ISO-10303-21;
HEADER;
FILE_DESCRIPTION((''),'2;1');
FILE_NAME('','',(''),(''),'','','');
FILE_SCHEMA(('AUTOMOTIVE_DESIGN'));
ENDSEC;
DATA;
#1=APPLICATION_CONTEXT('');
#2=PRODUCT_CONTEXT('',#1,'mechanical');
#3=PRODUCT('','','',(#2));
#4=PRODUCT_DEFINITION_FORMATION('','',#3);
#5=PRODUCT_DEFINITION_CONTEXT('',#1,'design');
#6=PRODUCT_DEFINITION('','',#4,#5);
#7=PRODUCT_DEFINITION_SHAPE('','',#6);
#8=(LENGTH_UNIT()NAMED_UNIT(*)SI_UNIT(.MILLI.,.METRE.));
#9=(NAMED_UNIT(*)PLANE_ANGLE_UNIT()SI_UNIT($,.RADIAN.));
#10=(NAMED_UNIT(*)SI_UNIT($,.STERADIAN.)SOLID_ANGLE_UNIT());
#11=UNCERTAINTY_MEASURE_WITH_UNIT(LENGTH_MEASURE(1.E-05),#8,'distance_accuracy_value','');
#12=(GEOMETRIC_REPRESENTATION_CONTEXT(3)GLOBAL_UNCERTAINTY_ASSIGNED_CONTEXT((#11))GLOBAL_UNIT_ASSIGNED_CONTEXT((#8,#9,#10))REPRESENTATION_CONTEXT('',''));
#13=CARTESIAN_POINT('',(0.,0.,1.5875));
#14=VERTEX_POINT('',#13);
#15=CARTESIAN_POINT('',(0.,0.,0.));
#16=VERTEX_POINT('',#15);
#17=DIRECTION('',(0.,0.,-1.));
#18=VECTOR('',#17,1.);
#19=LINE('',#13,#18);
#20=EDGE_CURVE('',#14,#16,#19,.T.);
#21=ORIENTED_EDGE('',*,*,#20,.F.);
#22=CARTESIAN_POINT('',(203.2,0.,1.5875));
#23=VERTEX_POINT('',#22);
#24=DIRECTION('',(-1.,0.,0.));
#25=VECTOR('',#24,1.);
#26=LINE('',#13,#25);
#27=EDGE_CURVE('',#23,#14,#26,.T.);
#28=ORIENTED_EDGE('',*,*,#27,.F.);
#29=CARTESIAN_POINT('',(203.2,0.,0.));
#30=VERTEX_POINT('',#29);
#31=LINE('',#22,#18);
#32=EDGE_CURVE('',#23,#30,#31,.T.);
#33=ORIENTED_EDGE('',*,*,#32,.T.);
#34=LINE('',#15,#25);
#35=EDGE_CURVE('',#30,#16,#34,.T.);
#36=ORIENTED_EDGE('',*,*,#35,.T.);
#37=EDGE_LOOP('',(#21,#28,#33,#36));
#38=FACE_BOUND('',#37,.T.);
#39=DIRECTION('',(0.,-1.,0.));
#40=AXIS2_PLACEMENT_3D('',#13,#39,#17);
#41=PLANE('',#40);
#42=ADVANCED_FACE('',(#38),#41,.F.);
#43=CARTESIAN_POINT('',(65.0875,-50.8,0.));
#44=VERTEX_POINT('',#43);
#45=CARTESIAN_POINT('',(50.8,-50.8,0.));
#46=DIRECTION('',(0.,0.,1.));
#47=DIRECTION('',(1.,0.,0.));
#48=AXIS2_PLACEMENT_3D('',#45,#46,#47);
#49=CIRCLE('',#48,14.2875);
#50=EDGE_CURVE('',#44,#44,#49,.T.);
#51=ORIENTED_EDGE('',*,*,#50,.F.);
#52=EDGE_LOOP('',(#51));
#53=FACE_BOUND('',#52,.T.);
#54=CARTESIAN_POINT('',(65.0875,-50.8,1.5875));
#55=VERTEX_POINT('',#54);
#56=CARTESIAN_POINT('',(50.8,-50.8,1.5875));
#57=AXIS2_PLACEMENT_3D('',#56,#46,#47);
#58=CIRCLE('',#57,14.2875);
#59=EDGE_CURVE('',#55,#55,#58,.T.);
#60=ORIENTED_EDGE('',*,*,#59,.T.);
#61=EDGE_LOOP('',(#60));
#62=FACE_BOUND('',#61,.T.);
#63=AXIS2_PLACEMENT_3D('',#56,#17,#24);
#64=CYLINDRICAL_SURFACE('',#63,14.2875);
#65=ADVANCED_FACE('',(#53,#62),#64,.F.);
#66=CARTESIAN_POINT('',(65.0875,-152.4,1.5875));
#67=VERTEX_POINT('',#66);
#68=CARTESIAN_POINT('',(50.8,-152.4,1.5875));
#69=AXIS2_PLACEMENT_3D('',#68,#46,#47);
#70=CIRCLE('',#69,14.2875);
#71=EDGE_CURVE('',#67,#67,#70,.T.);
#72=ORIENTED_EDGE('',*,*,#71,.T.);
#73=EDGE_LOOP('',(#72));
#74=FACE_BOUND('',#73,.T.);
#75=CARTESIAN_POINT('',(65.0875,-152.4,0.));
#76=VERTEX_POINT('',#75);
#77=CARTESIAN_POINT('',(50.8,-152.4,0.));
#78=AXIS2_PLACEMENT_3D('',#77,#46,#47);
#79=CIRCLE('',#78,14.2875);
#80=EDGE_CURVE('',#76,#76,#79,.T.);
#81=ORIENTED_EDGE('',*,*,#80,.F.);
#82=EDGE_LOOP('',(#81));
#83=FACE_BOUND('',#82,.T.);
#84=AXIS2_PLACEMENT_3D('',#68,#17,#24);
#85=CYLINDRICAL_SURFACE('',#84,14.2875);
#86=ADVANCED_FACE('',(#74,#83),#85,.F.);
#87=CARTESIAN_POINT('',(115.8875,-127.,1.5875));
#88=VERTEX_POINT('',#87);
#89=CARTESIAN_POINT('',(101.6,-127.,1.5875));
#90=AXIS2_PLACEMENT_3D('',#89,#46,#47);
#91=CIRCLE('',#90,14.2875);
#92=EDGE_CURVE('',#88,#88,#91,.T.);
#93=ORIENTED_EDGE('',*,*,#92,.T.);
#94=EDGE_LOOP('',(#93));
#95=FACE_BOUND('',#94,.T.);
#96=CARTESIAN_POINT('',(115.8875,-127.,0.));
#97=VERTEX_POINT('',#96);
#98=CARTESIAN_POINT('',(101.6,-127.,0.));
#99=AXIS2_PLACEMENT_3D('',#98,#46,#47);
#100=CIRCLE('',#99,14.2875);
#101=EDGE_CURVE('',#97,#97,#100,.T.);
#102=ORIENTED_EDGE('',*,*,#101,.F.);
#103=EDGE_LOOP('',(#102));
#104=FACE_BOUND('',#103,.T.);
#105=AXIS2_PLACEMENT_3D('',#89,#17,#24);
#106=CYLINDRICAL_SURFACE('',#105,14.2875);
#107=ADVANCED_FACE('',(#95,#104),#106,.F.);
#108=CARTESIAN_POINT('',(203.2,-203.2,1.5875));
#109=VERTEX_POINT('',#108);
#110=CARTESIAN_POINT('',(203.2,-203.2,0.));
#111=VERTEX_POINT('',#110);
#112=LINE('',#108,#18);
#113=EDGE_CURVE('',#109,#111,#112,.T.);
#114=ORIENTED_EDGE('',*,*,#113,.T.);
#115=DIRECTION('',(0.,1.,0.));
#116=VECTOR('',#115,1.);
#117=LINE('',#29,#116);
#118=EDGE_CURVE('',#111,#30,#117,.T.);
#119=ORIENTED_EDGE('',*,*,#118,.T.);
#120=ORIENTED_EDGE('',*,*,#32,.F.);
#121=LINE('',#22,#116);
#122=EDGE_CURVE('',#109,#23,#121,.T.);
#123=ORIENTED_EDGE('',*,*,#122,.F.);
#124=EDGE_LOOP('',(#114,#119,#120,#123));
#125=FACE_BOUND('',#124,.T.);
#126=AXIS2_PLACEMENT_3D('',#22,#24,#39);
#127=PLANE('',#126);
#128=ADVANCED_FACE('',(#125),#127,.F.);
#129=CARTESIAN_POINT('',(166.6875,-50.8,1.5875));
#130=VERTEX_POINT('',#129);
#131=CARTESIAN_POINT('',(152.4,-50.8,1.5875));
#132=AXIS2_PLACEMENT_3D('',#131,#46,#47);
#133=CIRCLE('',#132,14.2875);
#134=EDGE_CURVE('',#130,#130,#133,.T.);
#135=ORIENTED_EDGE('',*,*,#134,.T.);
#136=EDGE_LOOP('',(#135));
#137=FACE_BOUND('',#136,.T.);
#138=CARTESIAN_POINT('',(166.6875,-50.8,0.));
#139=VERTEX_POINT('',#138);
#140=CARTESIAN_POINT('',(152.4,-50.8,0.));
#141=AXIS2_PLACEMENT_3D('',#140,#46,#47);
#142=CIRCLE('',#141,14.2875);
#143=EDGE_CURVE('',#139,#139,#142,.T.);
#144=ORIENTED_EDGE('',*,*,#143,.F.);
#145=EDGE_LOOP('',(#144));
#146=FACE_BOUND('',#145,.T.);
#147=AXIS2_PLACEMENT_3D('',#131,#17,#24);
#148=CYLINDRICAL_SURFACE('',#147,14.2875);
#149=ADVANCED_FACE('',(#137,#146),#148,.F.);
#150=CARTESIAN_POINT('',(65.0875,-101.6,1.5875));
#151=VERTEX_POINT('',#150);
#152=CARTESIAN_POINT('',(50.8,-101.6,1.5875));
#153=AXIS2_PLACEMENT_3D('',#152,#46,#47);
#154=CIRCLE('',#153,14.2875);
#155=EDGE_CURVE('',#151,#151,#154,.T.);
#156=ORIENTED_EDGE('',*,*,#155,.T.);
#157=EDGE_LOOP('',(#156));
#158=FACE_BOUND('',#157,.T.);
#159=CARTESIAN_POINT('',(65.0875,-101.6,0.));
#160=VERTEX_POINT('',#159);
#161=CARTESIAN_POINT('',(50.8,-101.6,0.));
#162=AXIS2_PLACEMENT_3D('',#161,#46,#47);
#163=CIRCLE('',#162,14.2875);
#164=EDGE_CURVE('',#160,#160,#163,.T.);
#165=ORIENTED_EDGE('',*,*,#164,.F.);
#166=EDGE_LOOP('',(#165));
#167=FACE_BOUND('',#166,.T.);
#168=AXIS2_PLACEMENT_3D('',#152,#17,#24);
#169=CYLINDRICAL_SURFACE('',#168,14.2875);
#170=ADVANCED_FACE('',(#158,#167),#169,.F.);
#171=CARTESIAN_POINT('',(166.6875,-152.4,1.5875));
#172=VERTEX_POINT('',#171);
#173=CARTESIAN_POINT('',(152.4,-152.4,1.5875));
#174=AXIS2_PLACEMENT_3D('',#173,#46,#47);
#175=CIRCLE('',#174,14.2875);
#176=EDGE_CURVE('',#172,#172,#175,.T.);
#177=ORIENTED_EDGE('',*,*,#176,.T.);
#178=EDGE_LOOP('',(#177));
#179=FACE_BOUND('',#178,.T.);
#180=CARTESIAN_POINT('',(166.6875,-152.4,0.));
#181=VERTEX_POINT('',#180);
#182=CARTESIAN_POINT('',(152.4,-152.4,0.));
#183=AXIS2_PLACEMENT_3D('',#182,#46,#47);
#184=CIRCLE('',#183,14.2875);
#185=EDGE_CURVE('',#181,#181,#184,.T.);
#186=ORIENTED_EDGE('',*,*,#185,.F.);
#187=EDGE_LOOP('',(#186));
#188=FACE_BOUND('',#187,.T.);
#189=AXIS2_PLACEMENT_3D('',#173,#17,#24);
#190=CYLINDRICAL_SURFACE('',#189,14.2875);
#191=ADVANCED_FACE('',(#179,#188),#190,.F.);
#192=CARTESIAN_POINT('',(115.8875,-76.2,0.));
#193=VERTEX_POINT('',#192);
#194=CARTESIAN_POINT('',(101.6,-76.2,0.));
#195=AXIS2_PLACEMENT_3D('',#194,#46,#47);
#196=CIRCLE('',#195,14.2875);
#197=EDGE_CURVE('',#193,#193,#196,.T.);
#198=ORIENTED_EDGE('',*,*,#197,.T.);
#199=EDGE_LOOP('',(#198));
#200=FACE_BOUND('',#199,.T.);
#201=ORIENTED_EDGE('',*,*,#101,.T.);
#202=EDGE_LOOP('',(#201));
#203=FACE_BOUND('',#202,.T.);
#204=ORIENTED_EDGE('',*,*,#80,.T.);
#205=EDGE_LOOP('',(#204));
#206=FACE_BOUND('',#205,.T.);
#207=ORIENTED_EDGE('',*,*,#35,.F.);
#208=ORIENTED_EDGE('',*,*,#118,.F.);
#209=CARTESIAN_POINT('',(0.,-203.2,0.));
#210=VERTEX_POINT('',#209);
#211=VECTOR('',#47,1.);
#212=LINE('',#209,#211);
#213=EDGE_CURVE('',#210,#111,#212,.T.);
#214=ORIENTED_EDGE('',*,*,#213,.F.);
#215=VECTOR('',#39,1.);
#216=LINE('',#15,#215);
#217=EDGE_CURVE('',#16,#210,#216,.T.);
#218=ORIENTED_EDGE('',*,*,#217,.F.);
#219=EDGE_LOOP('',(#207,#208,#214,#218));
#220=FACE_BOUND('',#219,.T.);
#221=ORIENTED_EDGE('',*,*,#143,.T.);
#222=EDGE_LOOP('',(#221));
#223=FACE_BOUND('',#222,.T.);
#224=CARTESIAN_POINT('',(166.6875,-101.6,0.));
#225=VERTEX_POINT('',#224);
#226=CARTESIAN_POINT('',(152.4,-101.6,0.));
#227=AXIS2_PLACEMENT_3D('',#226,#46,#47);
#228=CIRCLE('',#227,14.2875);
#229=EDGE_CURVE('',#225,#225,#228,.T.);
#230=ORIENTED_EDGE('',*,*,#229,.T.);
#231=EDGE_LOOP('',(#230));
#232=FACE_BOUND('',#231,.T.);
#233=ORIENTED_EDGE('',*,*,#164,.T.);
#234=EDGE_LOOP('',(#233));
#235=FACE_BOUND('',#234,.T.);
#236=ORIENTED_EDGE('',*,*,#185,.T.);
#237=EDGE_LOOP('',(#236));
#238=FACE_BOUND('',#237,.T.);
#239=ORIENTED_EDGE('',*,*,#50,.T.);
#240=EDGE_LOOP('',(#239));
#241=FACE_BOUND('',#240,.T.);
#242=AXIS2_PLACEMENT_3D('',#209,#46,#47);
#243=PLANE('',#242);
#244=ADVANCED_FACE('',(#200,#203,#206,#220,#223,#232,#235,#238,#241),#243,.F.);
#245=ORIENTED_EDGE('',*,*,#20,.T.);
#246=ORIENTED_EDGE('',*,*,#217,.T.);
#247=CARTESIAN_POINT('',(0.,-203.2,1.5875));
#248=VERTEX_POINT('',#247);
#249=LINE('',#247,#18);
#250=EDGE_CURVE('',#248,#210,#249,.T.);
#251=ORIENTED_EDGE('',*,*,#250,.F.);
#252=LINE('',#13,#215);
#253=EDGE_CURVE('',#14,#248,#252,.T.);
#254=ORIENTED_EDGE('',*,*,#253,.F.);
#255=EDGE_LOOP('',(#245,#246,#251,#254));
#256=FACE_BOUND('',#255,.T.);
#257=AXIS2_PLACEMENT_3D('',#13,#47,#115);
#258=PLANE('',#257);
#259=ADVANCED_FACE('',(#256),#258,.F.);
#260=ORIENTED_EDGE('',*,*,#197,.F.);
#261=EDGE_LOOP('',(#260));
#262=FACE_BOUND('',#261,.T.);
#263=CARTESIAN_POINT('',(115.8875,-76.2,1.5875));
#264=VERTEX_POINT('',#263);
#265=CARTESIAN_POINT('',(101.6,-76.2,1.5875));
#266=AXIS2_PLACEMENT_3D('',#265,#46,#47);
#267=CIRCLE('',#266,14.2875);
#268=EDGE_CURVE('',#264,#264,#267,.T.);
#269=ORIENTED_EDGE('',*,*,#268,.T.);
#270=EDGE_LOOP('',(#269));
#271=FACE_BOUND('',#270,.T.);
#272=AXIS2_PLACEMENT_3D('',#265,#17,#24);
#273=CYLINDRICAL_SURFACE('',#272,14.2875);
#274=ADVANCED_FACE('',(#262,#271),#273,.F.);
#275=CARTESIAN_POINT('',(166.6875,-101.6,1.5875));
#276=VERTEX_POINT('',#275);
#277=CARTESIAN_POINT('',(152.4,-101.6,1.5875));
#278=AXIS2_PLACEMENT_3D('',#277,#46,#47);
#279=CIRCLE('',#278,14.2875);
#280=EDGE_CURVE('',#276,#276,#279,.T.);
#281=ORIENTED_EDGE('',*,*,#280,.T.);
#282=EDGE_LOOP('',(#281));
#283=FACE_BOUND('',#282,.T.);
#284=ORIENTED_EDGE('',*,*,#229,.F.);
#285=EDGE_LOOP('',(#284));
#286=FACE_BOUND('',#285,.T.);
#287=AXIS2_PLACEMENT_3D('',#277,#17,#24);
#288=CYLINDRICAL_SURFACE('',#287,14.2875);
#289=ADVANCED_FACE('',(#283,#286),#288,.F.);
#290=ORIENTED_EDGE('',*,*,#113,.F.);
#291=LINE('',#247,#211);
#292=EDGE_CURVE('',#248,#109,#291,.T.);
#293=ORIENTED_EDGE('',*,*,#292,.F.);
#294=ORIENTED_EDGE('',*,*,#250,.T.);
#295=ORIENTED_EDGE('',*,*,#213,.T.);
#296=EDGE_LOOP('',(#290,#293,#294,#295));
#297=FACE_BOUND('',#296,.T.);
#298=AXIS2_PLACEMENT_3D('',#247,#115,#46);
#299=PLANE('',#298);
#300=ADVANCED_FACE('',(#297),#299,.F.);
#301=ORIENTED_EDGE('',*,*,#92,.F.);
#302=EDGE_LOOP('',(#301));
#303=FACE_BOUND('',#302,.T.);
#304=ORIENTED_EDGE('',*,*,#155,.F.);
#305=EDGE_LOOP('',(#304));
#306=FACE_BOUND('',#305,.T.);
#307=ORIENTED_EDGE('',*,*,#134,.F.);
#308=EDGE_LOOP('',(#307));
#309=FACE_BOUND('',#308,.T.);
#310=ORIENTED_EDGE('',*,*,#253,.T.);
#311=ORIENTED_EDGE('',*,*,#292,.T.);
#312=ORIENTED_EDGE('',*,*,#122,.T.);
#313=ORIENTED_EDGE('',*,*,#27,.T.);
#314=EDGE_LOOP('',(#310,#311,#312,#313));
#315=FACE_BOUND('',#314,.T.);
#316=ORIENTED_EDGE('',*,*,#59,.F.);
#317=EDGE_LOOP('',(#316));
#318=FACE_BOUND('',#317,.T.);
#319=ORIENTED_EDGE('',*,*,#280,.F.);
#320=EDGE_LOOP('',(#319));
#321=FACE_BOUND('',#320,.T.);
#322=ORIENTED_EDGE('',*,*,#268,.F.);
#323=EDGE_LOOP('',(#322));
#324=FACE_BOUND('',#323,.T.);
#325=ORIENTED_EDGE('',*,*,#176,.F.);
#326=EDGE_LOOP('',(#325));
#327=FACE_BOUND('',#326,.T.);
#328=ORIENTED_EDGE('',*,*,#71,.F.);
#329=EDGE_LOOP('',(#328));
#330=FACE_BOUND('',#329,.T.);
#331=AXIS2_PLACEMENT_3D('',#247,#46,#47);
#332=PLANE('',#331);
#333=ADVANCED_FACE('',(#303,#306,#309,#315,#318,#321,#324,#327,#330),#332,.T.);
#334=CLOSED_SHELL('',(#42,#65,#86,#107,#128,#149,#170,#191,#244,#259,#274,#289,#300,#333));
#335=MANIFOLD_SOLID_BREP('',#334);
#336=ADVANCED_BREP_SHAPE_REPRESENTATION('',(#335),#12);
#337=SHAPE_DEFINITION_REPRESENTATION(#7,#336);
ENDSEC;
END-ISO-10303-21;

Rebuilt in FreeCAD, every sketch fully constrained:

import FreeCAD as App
import Part
import Sketcher
from FreeCAD import Vector
Q = App.Units.Quantity

doc = App.newDocument("Part")
body = doc.addObject("PartDesign::Body", "Body")

sketch1 = doc.addObject("Sketcher::SketchObject", "Sketch")
body.addObject(sketch1)
sketch1.AttachmentSupport = (doc.XY_Plane, [""])
sketch1.MapMode = "FlatFace"
sketch1.addGeometry(Part.LineSegment(Vector(0, 0, 0), Vector(0, -203, 0)), False)
sketch1.addGeometry(Part.LineSegment(Vector(0, -203, 0), Vector(203, -203, 0)), False)
sketch1.addGeometry(Part.LineSegment(Vector(203, -203, 0), Vector(203, 0, 0)), False)
sketch1.addGeometry(Part.LineSegment(Vector(203, 0, 0), Vector(0, 0, 0)), False)
sketch1.addGeometry(Part.Circle(Vector(51, -152, 0), Vector(0, 0, 1), 14), False)
sketch1.addGeometry(Part.Circle(Vector(152, -152, 0), Vector(0, 0, 1), 14), False)
sketch1.addGeometry(Part.Circle(Vector(102, -127, 0), Vector(0, 0, 1), 14), False)
sketch1.addGeometry(Part.Circle(Vector(51, -102, 0), Vector(0, 0, 1), 14), False)
sketch1.addGeometry(Part.Circle(Vector(51, -51, 0), Vector(0, 0, 1), 14), False)
sketch1.addGeometry(Part.Circle(Vector(102, -76, 0), Vector(0, 0, 1), 14), False)
sketch1.addGeometry(Part.Circle(Vector(152, -102, 0), Vector(0, 0, 1), 14), False)
sketch1.addGeometry(Part.Circle(Vector(152, -51, 0), Vector(0, 0, 1), 14), False)
sketch1.addConstraint(Sketcher.Constraint("Coincident", 0, 2, 1, 1))
sketch1.addConstraint(Sketcher.Constraint("Coincident", 1, 2, 2, 1))
sketch1.addConstraint(Sketcher.Constraint("Coincident", 2, 2, 3, 1))
sketch1.addConstraint(Sketcher.Constraint("Coincident", 3, 2, 0, 1))
sketch1.addConstraint(Sketcher.Constraint("Vertical", 0))
sketch1.addConstraint(Sketcher.Constraint("Horizontal", 1))
sketch1.addConstraint(Sketcher.Constraint("Vertical", 2))
sketch1.addConstraint(Sketcher.Constraint("Horizontal", 3))
sketch1.addConstraint(Sketcher.Constraint("Coincident", 3, 2, -1, 1))
sketch1.addConstraint(Sketcher.Constraint("Equal", 4, 5))
sketch1.addConstraint(Sketcher.Constraint("Equal", 5, 6))
sketch1.addConstraint(Sketcher.Constraint("Equal", 6, 7))
sketch1.addConstraint(Sketcher.Constraint("Equal", 7, 8))
sketch1.addConstraint(Sketcher.Constraint("Equal", 8, 9))
sketch1.addConstraint(Sketcher.Constraint("Equal", 9, 10))
sketch1.addConstraint(Sketcher.Constraint("Equal", 10, 11))
sketch1.addConstraint(Sketcher.Constraint("Horizontal", 4, 3, 5, 3))
sketch1.addConstraint(Sketcher.Constraint("Horizontal", 7, 3, 10, 3))
sketch1.addConstraint(Sketcher.Constraint("Horizontal", 8, 3, 11, 3))
sketch1.addConstraint(Sketcher.Constraint("Vertical", 4, 3, 7, 3))
sketch1.addConstraint(Sketcher.Constraint("Vertical", 7, 3, 8, 3))
sketch1.addConstraint(Sketcher.Constraint("Vertical", 6, 3, 9, 3))
sketch1.addConstraint(Sketcher.Constraint("Vertical", 5, 3, 10, 3))
sketch1.addConstraint(Sketcher.Constraint("Vertical", 10, 3, 11, 3))
sketch1.addConstraint(Sketcher.Constraint("Equal", 3, 0))
sketch1.addConstraint(Sketcher.Constraint("DistanceX", 1, 1, 1, 2, Q("8 in")))
sketch1.addConstraint(Sketcher.Constraint("Diameter", 4, Q("1.125 in")))
sketch1.addConstraint(Sketcher.Constraint("DistanceX", -1, 1, 4, 3, Q("2 in")))
sketch1.addConstraint(Sketcher.Constraint("DistanceY", 4, 3, -1, 1, Q("6 in")))
sketch1.addConstraint(Sketcher.Constraint("DistanceX", -1, 1, 5, 3, Q("6 in")))
sketch1.addConstraint(Sketcher.Constraint("DistanceX", -1, 1, 6, 3, Q("4 in")))
sketch1.addConstraint(Sketcher.Constraint("DistanceY", 6, 3, -1, 1, Q("5 in")))
sketch1.addConstraint(Sketcher.Constraint("DistanceY", 7, 3, -1, 1, Q("4 in")))
sketch1.addConstraint(Sketcher.Constraint("DistanceY", 8, 3, -1, 1, Q("2 in")))
sketch1.addConstraint(Sketcher.Constraint("DistanceY", 9, 3, -1, 1, Q("3 in")))
pad1 = doc.addObject("PartDesign::Pad", "Pad")
body.addObject(pad1)
pad1.Profile = sketch1
pad1.Length = Q("0.0625 in")

doc.recompute()
